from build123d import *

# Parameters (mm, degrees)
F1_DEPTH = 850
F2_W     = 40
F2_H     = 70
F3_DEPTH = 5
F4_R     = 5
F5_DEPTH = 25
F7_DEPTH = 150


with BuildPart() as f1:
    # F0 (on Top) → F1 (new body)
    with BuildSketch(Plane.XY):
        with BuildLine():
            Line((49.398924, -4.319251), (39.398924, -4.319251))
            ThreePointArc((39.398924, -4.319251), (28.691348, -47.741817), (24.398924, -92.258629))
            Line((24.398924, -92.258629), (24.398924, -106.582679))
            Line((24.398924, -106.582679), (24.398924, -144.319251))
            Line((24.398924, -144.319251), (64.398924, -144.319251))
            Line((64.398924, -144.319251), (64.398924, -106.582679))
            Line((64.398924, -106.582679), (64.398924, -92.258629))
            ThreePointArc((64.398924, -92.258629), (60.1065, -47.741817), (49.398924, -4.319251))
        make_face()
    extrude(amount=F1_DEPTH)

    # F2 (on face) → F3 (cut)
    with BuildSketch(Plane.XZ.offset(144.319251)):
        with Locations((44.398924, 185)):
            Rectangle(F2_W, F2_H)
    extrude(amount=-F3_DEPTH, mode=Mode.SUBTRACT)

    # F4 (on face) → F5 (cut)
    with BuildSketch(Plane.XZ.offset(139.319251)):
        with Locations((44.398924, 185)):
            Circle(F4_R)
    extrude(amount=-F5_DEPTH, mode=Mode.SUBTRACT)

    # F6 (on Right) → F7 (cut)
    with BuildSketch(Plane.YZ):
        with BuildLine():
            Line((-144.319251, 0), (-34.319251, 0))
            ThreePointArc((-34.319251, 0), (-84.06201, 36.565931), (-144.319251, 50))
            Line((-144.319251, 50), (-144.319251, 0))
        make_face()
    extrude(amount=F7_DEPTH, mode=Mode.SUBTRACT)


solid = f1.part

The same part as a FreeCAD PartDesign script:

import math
import FreeCAD as App
import Part
import Sketcher
from FreeCAD import Vector


def add_polygon(sketch, points):
    """Adds a closed chain of lines whose ends are joined by coincident constraints."""
    first, n = sketch.GeometryCount, len(points)
    for a, b in zip(points, points[1:] + points[:1]):
        sketch.addGeometry(Part.LineSegment(App.Vector(*a, 0), App.Vector(*b, 0)), False)
    for i in range(n):
        sketch.addConstraint(Sketcher.Constraint("Coincident", first + i, 2, first + (i + 1) % n, 1))

doc = App.newDocument("Part")
body = doc.addObject("PartDesign::Body", "Body")

# Sketch on XY plane
sketch1 = doc.addObject("Sketcher::SketchObject", "Sketch")
body.addObject(sketch1)
sketch1.AttachmentSupport = (doc.XY_Plane, [""])
sketch1.MapMode = "FlatFace"
sketch1.addGeometry(Part.LineSegment(Vector(49, -4, 0), Vector(39, -4, 0)), False)
sketch1.addGeometry(Part.ArcOfCircle(Part.Circle(Vector(332, -99, 0), Vector(0, 0, 1), 307), math.radians(161.98), math.radians(178.66)), False)
sketch1.addGeometry(Part.LineSegment(Vector(24, -92, 0), Vector(24, -144, 0)), False)
sketch1.addGeometry(Part.LineSegment(Vector(24, -144, 0), Vector(64, -144, 0)), False)
sketch1.addGeometry(Part.LineSegment(Vector(64, -144, 0), Vector(64, -92, 0)), False)
sketch1.addGeometry(Part.ArcOfCircle(Part.Circle(Vector(-243, -99, 0), Vector(0, 0, 1), 307), math.radians(1.34), math.radians(18.02)), False)
sketch1.addConstraint(Sketcher.Constraint("Coincident", 0, 2, 1, 1))
sketch1.addConstraint(Sketcher.Constraint("Coincident", 1, 2, 2, 1))
sketch1.addConstraint(Sketcher.Constraint("Coincident", 2, 2, 3, 1))
sketch1.addConstraint(Sketcher.Constraint("Coincident", 3, 2, 4, 1))
sketch1.addConstraint(Sketcher.Constraint("Coincident", 4, 2, 5, 1))
sketch1.addConstraint(Sketcher.Constraint("Coincident", 5, 2, 0, 1))
sketch1.addConstraint(Sketcher.Constraint("Horizontal", 0))
sketch1.addConstraint(Sketcher.Constraint("Vertical", 2))
sketch1.addConstraint(Sketcher.Constraint("Horizontal", 3))
sketch1.addConstraint(Sketcher.Constraint("Vertical", 4))
sketch1.addConstraint(Sketcher.Constraint("Equal", 1, 5))
sketch1.addConstraint(Sketcher.Constraint("Horizontal", 1, 3, 5, 3))
sketch1.addConstraint(Sketcher.Constraint("Horizontal", 1, 2, 4, 2))
sketch1.addConstraint(Sketcher.Constraint("DistanceX", 0, 2, 0, 1, 10.0))
sketch1.addConstraint(Sketcher.Constraint("DistanceX", 3, 1, 3, 2, 40.0))
sketch1.addConstraint(Sketcher.Constraint("DistanceY", 2, 2, 0, 2, 140.0))
sketch1.addConstraint(Sketcher.Constraint("Radius", 1, 307.349541))
sketch1.addConstraint(Sketcher.Constraint("DistanceY", 2, 2, 2, 1, 52.060622))
sketch1.addConstraint(Sketcher.Constraint("DistanceX", 5, 3, -1, 1, 242.867159))
sketch1.addConstraint(Sketcher.Constraint("DistanceY", 0, 2, -1, 1, 4.319251))
pad1 = doc.addObject("PartDesign::Pad", "Pad")
body.addObject(pad1)
pad1.Profile = sketch1
pad1.Length = 850

# Sketch on XZ plane
sketch2 = doc.addObject("Sketcher::SketchObject", "Sketch001")
body.addObject(sketch2)
sketch2.AttachmentSupport = (doc.XZ_Plane, [""])
sketch2.MapMode = "FlatFace"
sketch2.AttachmentOffset = App.Placement(Vector(0, 0, 144.319251), App.Rotation())
add_polygon(sketch2, [(24, 220), (24, 150), (64, 150), (64, 220)])  # lines 0-3
sketch2.addConstraint(Sketcher.Constraint("Vertical", 0))
sketch2.addConstraint(Sketcher.Constraint("Horizontal", 1))
sketch2.addConstraint(Sketcher.Constraint("Vertical", 2))
sketch2.addConstraint(Sketcher.Constraint("Horizontal", 3))
sketch2.addConstraint(Sketcher.Constraint("DistanceX", 1, 1, 1, 2, 40.0))
sketch2.addConstraint(Sketcher.Constraint("DistanceY", 0, 2, 0, 1, 70.0))
sketch2.addConstraint(Sketcher.Constraint("DistanceY", -1, 1, 0, 2, 150.0))
sketch2.addConstraint(Sketcher.Constraint("DistanceX", -1, 1, 0, 2, 24.398924))
pocket1 = doc.addObject("PartDesign::Pocket", "Pocket")
body.addObject(pocket1)
pocket1.Profile = sketch2
pocket1.Length = 5

# Sketch on XZ plane
sketch3 = doc.addObject("Sketcher::SketchObject", "Sketch002")
body.addObject(sketch3)
sketch3.AttachmentSupport = (doc.XZ_Plane, [""])
sketch3.MapMode = "FlatFace"
sketch3.AttachmentOffset = App.Placement(Vector(0, 0, 139.319251), App.Rotation())
sketch3.addGeometry(Part.Circle(Vector(44, 185, 0), Vector(0, 0, 1), 5), False)
sketch3.addConstraint(Sketcher.Constraint("Diameter", 0, 10.0))
sketch3.addConstraint(Sketcher.Constraint("DistanceY", -1, 1, 0, 3, 185.0))
sketch3.addConstraint(Sketcher.Constraint("DistanceX", -1, 1, 0, 3, 44.398924))
pocket2 = doc.addObject("PartDesign::Pocket", "Pocket001")
body.addObject(pocket2)
pocket2.Profile = sketch3
pocket2.Length = 25

# Sketch on YZ plane
sketch4 = doc.addObject("Sketcher::SketchObject", "Sketch003")
body.addObject(sketch4)
sketch4.AttachmentSupport = (doc.YZ_Plane, [""])
sketch4.MapMode = "FlatFace"
sketch4.addGeometry(Part.LineSegment(Vector(-144, 0, 0), Vector(-34, 0, 0)), False)
sketch4.addGeometry(Part.ArcOfCircle(Part.Circle(Vector(-146, -100, 0), Vector(0, 0, 1), 150), math.radians(42), math.radians(89)), False)
sketch4.addGeometry(Part.LineSegment(Vector(-144, 50, 0), Vector(-144, 0, 0)), False)
sketch4.addConstraint(Sketcher.Constraint("Coincident", 0, 2, 1, 1))
sketch4.addConstraint(Sketcher.Constraint("Coincident", 1, 2, 2, 1))
sketch4.addConstraint(Sketcher.Constraint("Coincident", 2, 2, 0, 1))
sketch4.addConstraint(Sketcher.Constraint("Horizontal", 0))
sketch4.addConstraint(Sketcher.Constraint("Vertical", 2))
sketch4.addConstraint(Sketcher.Constraint("PointOnObject", 0, 2, -1))
sketch4.addConstraint(Sketcher.Constraint("Radius", 1, 150.000002))
sketch4.addConstraint(Sketcher.Constraint("DistanceX", 0, 1, 0, 2, 110.0))
sketch4.addConstraint(Sketcher.Constraint("DistanceY", 2, 2, 2, 1, 50.0))
sketch4.addConstraint(Sketcher.Constraint("DistanceX", 0, 2, -1, 1, 34.319251))
pocket3 = doc.addObject("PartDesign::Pocket", "Pocket002")
body.addObject(pocket3)
pocket3.Profile = sketch4
pocket3.Length = 150
pocket3.Reversed = True

doc.recompute()
